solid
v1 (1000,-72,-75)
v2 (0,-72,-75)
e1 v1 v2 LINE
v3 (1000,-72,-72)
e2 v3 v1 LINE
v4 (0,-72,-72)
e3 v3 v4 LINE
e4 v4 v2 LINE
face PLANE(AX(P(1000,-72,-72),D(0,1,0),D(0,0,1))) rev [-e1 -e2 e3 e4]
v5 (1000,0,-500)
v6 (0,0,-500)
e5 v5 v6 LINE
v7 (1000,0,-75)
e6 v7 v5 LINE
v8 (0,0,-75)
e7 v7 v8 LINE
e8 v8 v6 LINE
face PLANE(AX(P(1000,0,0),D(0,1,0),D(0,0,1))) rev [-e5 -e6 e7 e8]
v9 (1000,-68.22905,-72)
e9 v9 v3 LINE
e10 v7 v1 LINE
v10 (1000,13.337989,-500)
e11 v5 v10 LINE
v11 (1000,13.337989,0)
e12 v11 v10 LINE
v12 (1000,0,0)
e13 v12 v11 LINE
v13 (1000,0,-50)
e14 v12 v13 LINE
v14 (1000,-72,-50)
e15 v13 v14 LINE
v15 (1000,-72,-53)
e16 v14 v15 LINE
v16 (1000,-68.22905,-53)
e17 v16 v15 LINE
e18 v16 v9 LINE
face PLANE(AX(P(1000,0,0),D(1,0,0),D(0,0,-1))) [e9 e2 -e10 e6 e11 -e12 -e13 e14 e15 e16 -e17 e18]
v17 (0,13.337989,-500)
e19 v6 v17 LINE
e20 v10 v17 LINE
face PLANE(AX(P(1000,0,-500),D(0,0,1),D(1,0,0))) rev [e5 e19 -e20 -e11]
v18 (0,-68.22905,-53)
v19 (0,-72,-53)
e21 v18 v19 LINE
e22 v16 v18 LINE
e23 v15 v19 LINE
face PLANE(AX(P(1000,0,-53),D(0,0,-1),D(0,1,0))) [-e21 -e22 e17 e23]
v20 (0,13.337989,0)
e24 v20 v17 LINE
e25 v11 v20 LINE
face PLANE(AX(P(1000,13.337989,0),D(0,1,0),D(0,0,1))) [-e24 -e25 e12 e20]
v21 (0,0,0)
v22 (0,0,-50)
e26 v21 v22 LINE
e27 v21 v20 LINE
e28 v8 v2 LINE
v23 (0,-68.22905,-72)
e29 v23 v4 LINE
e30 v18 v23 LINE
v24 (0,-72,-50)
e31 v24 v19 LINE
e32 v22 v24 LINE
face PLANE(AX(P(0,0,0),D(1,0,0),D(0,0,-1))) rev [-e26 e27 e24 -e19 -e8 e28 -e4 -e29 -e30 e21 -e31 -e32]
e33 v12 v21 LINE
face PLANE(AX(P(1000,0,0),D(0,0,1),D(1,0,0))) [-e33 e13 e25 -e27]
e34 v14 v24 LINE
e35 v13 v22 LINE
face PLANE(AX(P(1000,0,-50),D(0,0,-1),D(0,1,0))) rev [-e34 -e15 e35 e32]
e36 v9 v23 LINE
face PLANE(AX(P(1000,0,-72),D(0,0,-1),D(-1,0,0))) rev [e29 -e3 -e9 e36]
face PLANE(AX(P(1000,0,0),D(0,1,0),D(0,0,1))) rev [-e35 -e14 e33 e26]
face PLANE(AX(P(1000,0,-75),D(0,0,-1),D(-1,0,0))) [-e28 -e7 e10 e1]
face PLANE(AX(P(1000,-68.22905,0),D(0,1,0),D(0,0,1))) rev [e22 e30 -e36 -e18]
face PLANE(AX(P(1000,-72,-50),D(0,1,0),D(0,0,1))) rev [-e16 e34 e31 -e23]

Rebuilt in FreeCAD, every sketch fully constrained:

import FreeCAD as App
import Part
import Sketcher
from FreeCAD import Vector


def add_polygon(sketch, points):
    """Adds a closed chain of lines whose ends are joined by coincident constraints."""
    first, n = sketch.GeometryCount, len(points)
    for a, b in zip(points, points[1:] + points[:1]):
        sketch.addGeometry(Part.LineSegment(App.Vector(*a, 0), App.Vector(*b, 0)), False)
    for i in range(n):
        sketch.addConstraint(Sketcher.Constraint("Coincident", first + i, 2, first + (i + 1) % n, 1))

doc = App.newDocument("Part")
body = doc.addObject("PartDesign::Body", "Body")

# Sketch on YZ plane
sketch1 = doc.addObject("Sketcher::SketchObject", "Sketch")
body.addObject(sketch1)
sketch1.AttachmentSupport = (doc.YZ_Plane, [""])
sketch1.MapMode = "FlatFace"
add_polygon(sketch1, [(13.337989, 0), (0, 0), (0, -50), (-72, -50), (-72, -53), (-68.22905, -53), (-68.22905, -72), (-72, -72), (-72, -75), (0, -75), (0, -500), (13.337989, -500)])  # lines 0-11
sketch1.addConstraint(Sketcher.Constraint("Horizontal", 0))
sketch1.addConstraint(Sketcher.Constraint("Vertical", 1))
sketch1.addConstraint(Sketcher.Constraint("Horizontal", 2))
sketch1.addConstraint(Sketcher.Constraint("Vertical", 3))
sketch1.addConstraint(Sketcher.Constraint("Horizontal", 4))
sketch1.addConstraint(Sketcher.Constraint("Vertical", 5))
sketch1.addConstraint(Sketcher.Constraint("Horizontal", 6))
sketch1.addConstraint(Sketcher.Constraint("Vertical", 7))
sketch1.addConstraint(Sketcher.Constraint("Horizontal", 8))
sketch1.addConstraint(Sketcher.Constraint("Vertical", 9))
sketch1.addConstraint(Sketcher.Constraint("Horizontal", 10))
sketch1.addConstraint(Sketcher.Constraint("Vertical", 11))
sketch1.addConstraint(Sketcher.Constraint("Coincident", 0, 2, -1, 1))
sketch1.addConstraint(Sketcher.Constraint("PointOnObject", 8, 2, -2))
sketch1.addConstraint(Sketcher.Constraint("Vertical", 3, 2, 6, 2))
sketch1.addConstraint(Sketcher.Constraint("Equal", 3, 7))
sketch1.addConstraint(Sketcher.Constraint("DistanceX", 2, 2, 2, 1, 72.0))
sketch1.addConstraint(Sketcher.Constraint("DistanceY", 1, 2, 1, 1, 50.0))
sketch1.addConstraint(Sketcher.Constraint("DistanceY", 3, 2, 3, 1, 3.0))
sketch1.addConstraint(Sketcher.Constraint("DistanceY", 5, 2, 5, 1, 19.0))
sketch1.addConstraint(Sketcher.Constraint("DistanceY", 9, 2, 9, 1, 425.0))
sketch1.addConstraint(Sketcher.Constraint("DistanceX", 0, 2, 0, 1, 13.337989))
sketch1.addConstraint(Sketcher.Constraint("DistanceX", 4, 1, 4, 2, 3.77095))
pad1 = doc.addObject("PartDesign::Pad", "Pad")
body.addObject(pad1)
pad1.Profile = sketch1
pad1.Length = 1000

doc.recompute()
